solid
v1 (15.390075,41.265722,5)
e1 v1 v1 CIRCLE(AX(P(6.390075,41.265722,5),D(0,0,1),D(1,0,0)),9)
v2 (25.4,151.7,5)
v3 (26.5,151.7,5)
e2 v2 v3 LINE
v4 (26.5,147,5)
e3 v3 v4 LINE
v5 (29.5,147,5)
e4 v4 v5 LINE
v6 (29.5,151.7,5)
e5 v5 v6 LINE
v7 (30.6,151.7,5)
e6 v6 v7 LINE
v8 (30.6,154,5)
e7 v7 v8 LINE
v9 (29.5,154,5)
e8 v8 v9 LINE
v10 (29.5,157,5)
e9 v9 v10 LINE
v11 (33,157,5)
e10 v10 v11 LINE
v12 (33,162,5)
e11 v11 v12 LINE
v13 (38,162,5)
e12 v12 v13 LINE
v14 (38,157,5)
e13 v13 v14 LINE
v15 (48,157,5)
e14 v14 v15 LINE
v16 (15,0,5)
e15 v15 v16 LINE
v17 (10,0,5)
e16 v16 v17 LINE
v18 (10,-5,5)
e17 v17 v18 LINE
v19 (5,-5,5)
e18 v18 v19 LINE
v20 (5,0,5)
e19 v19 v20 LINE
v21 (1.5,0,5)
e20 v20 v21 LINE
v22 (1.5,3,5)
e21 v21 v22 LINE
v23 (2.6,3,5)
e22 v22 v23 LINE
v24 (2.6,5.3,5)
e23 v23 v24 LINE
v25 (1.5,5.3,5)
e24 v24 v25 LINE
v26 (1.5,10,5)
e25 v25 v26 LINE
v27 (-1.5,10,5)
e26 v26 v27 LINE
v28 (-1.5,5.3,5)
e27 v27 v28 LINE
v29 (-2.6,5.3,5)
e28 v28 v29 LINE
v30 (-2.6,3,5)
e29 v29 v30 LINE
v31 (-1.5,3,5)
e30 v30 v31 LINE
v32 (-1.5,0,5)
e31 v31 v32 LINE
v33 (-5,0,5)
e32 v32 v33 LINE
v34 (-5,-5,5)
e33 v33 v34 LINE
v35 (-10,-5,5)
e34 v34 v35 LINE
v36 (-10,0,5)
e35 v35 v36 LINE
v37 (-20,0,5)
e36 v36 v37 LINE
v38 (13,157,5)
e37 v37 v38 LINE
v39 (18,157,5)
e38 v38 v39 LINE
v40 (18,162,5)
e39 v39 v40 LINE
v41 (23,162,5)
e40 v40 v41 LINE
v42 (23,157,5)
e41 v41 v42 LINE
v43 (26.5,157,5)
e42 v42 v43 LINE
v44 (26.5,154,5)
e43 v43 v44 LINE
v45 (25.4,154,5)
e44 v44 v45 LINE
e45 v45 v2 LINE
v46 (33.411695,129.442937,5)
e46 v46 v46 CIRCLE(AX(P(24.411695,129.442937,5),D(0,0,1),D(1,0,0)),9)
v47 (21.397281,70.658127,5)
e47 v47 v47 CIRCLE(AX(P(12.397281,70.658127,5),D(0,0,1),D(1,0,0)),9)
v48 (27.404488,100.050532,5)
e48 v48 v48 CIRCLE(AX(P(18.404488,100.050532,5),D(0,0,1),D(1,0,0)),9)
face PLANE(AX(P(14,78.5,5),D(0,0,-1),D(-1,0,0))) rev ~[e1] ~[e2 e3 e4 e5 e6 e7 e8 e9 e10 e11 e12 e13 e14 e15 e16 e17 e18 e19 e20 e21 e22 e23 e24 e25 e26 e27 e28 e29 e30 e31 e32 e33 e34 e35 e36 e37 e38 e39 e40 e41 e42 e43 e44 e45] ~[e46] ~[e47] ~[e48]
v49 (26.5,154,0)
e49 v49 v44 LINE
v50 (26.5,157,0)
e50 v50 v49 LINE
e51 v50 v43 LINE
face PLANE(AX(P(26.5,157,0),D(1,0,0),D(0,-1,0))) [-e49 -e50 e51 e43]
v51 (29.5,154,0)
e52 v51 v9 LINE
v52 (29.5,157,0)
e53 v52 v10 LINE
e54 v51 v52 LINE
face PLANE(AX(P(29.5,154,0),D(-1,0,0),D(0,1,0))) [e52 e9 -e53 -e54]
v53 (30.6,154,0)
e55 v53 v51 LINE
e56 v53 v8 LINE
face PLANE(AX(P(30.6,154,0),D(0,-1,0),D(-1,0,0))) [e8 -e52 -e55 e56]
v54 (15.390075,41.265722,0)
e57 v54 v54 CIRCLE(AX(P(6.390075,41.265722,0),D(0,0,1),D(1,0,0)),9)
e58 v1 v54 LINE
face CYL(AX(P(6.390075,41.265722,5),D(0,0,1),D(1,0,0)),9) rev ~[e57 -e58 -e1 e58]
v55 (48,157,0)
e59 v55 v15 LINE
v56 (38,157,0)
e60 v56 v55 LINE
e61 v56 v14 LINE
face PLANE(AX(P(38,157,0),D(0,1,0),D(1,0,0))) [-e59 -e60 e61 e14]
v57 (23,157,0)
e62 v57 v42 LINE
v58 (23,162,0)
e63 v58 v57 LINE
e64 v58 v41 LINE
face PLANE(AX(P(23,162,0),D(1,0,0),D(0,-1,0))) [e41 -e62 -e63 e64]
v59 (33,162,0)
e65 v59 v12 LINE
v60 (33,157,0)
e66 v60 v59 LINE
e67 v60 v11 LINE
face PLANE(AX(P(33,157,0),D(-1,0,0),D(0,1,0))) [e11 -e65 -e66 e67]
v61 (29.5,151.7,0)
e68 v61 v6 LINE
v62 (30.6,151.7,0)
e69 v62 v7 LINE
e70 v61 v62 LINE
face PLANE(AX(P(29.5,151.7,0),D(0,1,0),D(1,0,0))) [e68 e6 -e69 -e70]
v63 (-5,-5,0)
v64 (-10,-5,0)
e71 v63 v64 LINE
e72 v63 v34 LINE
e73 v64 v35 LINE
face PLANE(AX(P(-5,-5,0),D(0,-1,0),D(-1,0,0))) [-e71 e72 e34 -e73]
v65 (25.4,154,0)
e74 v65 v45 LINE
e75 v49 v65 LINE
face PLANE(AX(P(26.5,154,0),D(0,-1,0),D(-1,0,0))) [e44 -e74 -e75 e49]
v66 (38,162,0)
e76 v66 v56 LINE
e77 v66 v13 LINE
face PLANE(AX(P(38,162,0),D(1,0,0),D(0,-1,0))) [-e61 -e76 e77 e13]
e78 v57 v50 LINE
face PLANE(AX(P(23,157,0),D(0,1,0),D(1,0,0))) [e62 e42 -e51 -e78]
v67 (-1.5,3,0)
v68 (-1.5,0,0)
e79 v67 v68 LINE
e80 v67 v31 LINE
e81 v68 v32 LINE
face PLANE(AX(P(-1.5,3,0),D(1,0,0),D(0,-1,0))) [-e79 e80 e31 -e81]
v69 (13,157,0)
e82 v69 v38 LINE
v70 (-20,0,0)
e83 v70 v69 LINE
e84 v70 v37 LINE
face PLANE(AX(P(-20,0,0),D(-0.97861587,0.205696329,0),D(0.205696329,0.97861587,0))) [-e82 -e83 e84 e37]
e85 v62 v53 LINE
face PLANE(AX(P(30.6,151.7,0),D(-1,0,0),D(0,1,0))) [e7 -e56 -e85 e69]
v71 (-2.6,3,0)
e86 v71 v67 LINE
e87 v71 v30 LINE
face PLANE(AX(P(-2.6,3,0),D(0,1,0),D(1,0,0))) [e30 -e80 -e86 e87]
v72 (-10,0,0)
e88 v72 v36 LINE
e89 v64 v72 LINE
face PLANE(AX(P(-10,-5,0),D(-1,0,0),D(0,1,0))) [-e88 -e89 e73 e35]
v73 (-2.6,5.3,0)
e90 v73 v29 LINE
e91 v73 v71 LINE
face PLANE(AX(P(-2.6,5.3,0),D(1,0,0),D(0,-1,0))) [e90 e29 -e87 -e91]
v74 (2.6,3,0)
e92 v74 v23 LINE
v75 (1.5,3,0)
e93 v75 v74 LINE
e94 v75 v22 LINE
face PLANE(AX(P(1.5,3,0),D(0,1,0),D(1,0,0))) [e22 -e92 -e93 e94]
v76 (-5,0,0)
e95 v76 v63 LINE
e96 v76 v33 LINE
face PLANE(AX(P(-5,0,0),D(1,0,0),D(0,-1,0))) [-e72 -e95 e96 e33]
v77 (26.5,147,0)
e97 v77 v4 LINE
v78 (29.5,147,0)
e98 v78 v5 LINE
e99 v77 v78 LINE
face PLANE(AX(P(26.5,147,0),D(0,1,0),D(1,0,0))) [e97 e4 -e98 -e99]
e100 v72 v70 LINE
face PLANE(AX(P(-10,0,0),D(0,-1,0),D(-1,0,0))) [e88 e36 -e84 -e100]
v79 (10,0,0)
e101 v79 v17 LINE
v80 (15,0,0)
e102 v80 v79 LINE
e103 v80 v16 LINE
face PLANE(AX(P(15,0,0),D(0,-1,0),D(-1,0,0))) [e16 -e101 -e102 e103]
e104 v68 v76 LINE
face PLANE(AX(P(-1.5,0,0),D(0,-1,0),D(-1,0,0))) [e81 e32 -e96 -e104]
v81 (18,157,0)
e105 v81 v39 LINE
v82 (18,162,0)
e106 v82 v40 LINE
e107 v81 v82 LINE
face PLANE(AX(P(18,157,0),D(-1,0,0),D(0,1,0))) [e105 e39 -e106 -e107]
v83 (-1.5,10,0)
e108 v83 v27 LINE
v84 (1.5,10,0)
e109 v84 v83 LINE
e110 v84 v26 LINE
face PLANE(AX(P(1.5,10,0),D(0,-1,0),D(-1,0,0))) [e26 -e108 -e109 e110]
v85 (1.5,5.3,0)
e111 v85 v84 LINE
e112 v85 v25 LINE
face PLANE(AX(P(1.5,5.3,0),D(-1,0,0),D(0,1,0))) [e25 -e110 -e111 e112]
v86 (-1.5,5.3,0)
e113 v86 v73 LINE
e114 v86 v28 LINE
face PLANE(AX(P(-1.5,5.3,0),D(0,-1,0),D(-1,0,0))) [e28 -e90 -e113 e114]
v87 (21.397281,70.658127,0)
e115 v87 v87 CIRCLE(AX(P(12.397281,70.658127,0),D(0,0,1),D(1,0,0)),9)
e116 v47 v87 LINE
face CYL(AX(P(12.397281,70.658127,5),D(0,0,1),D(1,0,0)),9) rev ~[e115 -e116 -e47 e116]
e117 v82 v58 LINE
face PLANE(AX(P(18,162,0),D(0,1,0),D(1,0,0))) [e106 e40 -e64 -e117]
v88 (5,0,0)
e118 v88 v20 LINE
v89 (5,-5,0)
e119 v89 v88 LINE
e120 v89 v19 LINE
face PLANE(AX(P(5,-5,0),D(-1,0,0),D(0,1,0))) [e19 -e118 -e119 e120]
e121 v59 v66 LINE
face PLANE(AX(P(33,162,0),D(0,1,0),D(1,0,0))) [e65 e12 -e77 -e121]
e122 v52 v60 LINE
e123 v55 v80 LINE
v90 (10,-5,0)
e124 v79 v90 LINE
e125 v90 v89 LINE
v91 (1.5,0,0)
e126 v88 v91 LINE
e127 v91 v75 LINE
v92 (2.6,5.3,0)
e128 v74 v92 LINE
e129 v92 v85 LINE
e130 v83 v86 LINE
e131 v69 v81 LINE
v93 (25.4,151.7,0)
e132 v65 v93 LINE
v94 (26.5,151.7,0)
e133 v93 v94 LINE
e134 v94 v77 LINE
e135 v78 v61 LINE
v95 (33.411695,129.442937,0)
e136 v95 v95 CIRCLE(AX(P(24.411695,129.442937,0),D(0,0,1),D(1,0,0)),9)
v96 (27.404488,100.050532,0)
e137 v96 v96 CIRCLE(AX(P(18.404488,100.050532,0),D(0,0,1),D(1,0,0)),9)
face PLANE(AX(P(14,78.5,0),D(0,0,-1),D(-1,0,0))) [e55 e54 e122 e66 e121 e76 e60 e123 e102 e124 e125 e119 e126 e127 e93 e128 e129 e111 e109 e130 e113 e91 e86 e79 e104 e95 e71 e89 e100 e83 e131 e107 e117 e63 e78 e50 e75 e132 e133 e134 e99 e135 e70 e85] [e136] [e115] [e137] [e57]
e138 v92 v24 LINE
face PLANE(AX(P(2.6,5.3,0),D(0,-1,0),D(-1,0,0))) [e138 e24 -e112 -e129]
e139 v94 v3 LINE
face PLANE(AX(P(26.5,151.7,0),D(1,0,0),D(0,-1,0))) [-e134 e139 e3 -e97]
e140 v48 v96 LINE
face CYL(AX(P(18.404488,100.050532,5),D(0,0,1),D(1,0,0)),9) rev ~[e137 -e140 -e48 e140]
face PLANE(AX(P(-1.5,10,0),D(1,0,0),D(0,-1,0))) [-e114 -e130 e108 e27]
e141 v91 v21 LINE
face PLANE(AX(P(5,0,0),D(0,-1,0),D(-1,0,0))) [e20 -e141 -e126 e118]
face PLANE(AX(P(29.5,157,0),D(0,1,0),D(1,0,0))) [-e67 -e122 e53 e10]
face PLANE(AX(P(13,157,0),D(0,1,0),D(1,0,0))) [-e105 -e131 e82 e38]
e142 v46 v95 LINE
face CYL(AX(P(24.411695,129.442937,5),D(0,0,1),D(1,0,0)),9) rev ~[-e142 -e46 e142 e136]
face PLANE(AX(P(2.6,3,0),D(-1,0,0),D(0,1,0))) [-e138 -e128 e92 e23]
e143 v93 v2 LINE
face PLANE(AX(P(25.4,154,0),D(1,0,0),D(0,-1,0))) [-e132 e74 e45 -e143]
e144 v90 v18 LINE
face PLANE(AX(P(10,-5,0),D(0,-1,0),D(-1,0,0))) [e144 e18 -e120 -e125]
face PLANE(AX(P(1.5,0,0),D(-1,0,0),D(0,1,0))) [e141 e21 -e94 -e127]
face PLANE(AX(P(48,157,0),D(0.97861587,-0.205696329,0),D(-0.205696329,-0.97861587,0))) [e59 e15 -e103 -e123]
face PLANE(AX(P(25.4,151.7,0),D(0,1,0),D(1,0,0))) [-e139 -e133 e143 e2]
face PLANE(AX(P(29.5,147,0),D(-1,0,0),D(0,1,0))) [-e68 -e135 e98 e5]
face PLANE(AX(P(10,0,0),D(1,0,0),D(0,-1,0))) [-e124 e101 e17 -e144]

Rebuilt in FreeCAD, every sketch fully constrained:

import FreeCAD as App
import Part
import Sketcher
Q = App.Units.Quantity


def add_polygon(sketch, points):
    """Adds a closed chain of lines whose ends are joined by coincident constraints."""
    first, n = sketch.GeometryCount, len(points)
    for a, b in zip(points, points[1:] + points[:1]):
        sketch.addGeometry(Part.LineSegment(App.Vector(*a, 0), App.Vector(*b, 0)), False)
    for i in range(n):
        sketch.addConstraint(Sketcher.Constraint("Coincident", first + i, 2, first + (i + 1) % n, 1))

doc = App.newDocument("Part")
body = doc.addObject("PartDesign::Body", "Body")

sketch1 = body.newObject("Sketcher::SketchObject", "Sketch")
sketch1.AttachmentSupport = (doc.getObject("XY_Plane"), [""])
sketch1.MapMode = "FlatFace"
add_polygon(sketch1, [(29.5, 157), (29.5, 154), (30.6, 154), (30.6, 151.7), (29.5, 151.7), (29.5, 147), (26.5, 147), (26.5, 151.7), (25.4, 151.7), (25.4, 154), (26.5, 154), (26.5, 157), (23, 157), (23, 162), (18, 162), (18, 157), (13, 157), (-20, 0), (-10, 0), (-10, -5), (-5, -5), (-5, 0), (-1.5, 0), (-1.5, 3), (-2.6, 3), (-2.6, 5.3), (-1.5, 5.3), (-1.5, 10), (1.5, 10), (1.5, 5.3), (2.6, 5.3), (2.6, 3), (1.5, 3), (1.5, 0), (5, 0), (5, -5), (10, -5), (10, 0), (15, 0), (48, 157), (38, 157), (38, 162), (33, 162), (33, 157)])
sketch1.addConstraint([
    Sketcher.Constraint("Vertical", 0),
    Sketcher.Constraint("Horizontal", 1),
    Sketcher.Constraint("Vertical", 2),
    Sketcher.Constraint("Horizontal", 3),
    Sketcher.Constraint("Vertical", 4),
    Sketcher.Constraint("Horizontal", 5),
    Sketcher.Constraint("Vertical", 6),
    Sketcher.Constraint("Horizontal", 7),
    Sketcher.Constraint("Vertical", 8),
    Sketcher.Constraint("Horizontal", 9),
    Sketcher.Constraint("Vertical", 10),
    Sketcher.Constraint("Horizontal", 11),
    Sketcher.Constraint("Vertical", 12),
    Sketcher.Constraint("Horizontal", 13),
    Sketcher.Constraint("Vertical", 14),
    Sketcher.Constraint("Horizontal", 15),
    Sketcher.Constraint("Horizontal", 17),
    Sketcher.Constraint("Vertical", 18),
    Sketcher.Constraint("Horizontal", 19),
    Sketcher.Constraint("Vertical", 20),
    Sketcher.Constraint("Horizontal", 21),
    Sketcher.Constraint("Vertical", 22),
    Sketcher.Constraint("Horizontal", 23),
    Sketcher.Constraint("Vertical", 24),
    Sketcher.Constraint("Horizontal", 25),
    Sketcher.Constraint("Vertical", 26),
    Sketcher.Constraint("Horizontal", 27),
    Sketcher.Constraint("Vertical", 28),
    Sketcher.Constraint("Horizontal", 29),
    Sketcher.Constraint("Vertical", 30),
    Sketcher.Constraint("Horizontal", 31),
    Sketcher.Constraint("Vertical", 32),
    Sketcher.Constraint("Horizontal", 33),
    Sketcher.Constraint("Vertical", 34),
    Sketcher.Constraint("Horizontal", 35),
    Sketcher.Constraint("Vertical", 36),
    Sketcher.Constraint("Horizontal", 37),
    Sketcher.Constraint("Horizontal", 39),
    Sketcher.Constraint("Vertical", 40),
    Sketcher.Constraint("Horizontal", 41),
    Sketcher.Constraint("Vertical", 42),
    Sketcher.Constraint("Horizontal", 43),
    Sketcher.Constraint("Symmetric", 21, 2, 32, 2, -1, 1),
    Sketcher.Constraint("Symmetric", 17, 2, 36, 2, -1, 1),
    Sketcher.Constraint("Symmetric", 25, 2, 28, 2, -2),
    Sketcher.Constraint("Symmetric", 23, 2, 30, 2, -2),
    Sketcher.Constraint("Symmetric", 20, 2, 33, 2, -2),
    Sketcher.Constraint("PointOnObject", 16, 2, -1),
    Sketcher.Constraint("Parallel", 16, 38),
    Sketcher.Constraint("Horizontal", 3, 2, 6, 2),
    Sketcher.Constraint("Horizontal", 1, 2, 8, 2),
    Sketcher.Constraint("Horizontal", 11, 2, 14, 2),
    Sketcher.Constraint("Horizontal", 19, 2, 34, 2),
    Sketcher.Constraint("Horizontal", 15, 2, 38, 2),
    Sketcher.Constraint("Horizontal", 13, 2, 40, 2),
    Sketcher.Constraint("Horizontal", 39, 2, 42, 2),
    Sketcher.Constraint("Vertical", 0, 2, 3, 2),
    Sketcher.Constraint("Vertical", 6, 2, 9, 2),
    Sketcher.Constraint("Vertical", 22, 2, 25, 2),
    Sketcher.Constraint("Equal", 3, 7),
    Sketcher.Constraint("Equal", 13, 15),
    Sketcher.Constraint("Equal", 15, 19),
    Sketcher.Constraint("Equal", 11, 21),
    Sketcher.Constraint("Equal", 9, 23),
    Sketcher.Constraint("Equal", 5, 27),
    Sketcher.Constraint("Equal", 35, 37),
    Sketcher.Constraint("Equal", 17, 39),
    Sketcher.Constraint("Equal", 37, 41),
    Sketcher.Constraint("Equal", 27, 0),
    Sketcher.Constraint("Equal", 41, 12),
    Sketcher.Constraint("Equal", 14, 18),
    Sketcher.Constraint("Equal", 10, 22),
    Sketcher.Constraint("Equal", 8, 24),
    Sketcher.Constraint("Equal", 6, 26),
    Sketcher.Constraint("DistanceX", 5, 2, 5, 1, Q("3 mm")),
    Sketcher.Constraint("DistanceX", 13, 2, 13, 1, Q("5 mm")),
    Sketcher.Constraint("DistanceX", 17, 1, 17, 2, Q("10 mm")),
    Sketcher.Constraint("DistanceX", 1, 1, 1, 2, Q("1.1 mm")),
    Sketcher.Constraint("DistanceX", 11, 2, 11, 1, Q("3.5 mm")),
    Sketcher.Constraint("DistanceY", 2, 2, 2, 1, Q("2.3 mm")),
    Sketcher.Constraint("DistanceY", 4, 2, 4, 1, Q("4.7 mm")),
    Sketcher.Constraint("DistanceY", -1, 1, 0, 2, Q("154 mm")),
    Sketcher.Constraint("DistanceX", -1, 1, 11, 2, Q("23 mm")),
])
pad1 = body.newObject("PartDesign::Pad", "Pad")
pad1.Profile = sketch1
pad1.Length = 5

sketch2 = body.newObject("Sketcher::SketchObject", "Sketch001")
sketch2.AttachmentSupport = (doc.getObject("XY_Plane"), [""])
sketch2.MapMode = "FlatFace"
sketch2.AttachmentOffset = App.Placement(App.Vector(0, 0, 5), App.Rotation())
sketch2.addGeometry([
    Part.Circle(App.Vector(24, 129, 0), App.Vector(0, 0, 1), 9),
    Part.Circle(App.Vector(18, 100, 0), App.Vector(0, 0, 1), 9),
    Part.Circle(App.Vector(12, 71, 0), App.Vector(0, 0, 1), 9),
    Part.Circle(App.Vector(6, 41, 0), App.Vector(0, 0, 1), 9),
], False)
sketch2.addConstraint([
    Sketcher.Constraint("Equal", 0, 1),
    Sketcher.Constraint("Equal", 1, 2),
    Sketcher.Constraint("Equal", 2, 3),
    Sketcher.Constraint("Diameter", 0, Q("18 mm")),
    Sketcher.Constraint("DistanceX", -1, 1, 1, 3, Q("18.404488 mm")),
    Sketcher.Constraint("DistanceY", -1, 1, 1, 3, Q("100.050532 mm")),
    Sketcher.Constraint("DistanceX", -1, 1, 2, 3, Q("12.397281 mm")),
    Sketcher.Constraint("DistanceY", 2, 3, 0, 3, Q("58.78481 mm")),
    Sketcher.Constraint("DistanceY", 3, 3, 1, 3, Q("58.78481 mm")),
    Sketcher.Constraint("DistanceX", 3, 3, 0, 3, Q("18.021621 mm")),
    Sketcher.Constraint("DistanceX", -1, 1, 0, 3, Q("24.411695 mm")),
    Sketcher.Constraint("DistanceY", -1, 1, 0, 3, Q("129.442937 mm")),
])
pocket1 = body.newObject("PartDesign::Pocket", "Pocket")
pocket1.Profile = sketch2
pocket1.Type = "ThroughAll"

doc.recompute()
